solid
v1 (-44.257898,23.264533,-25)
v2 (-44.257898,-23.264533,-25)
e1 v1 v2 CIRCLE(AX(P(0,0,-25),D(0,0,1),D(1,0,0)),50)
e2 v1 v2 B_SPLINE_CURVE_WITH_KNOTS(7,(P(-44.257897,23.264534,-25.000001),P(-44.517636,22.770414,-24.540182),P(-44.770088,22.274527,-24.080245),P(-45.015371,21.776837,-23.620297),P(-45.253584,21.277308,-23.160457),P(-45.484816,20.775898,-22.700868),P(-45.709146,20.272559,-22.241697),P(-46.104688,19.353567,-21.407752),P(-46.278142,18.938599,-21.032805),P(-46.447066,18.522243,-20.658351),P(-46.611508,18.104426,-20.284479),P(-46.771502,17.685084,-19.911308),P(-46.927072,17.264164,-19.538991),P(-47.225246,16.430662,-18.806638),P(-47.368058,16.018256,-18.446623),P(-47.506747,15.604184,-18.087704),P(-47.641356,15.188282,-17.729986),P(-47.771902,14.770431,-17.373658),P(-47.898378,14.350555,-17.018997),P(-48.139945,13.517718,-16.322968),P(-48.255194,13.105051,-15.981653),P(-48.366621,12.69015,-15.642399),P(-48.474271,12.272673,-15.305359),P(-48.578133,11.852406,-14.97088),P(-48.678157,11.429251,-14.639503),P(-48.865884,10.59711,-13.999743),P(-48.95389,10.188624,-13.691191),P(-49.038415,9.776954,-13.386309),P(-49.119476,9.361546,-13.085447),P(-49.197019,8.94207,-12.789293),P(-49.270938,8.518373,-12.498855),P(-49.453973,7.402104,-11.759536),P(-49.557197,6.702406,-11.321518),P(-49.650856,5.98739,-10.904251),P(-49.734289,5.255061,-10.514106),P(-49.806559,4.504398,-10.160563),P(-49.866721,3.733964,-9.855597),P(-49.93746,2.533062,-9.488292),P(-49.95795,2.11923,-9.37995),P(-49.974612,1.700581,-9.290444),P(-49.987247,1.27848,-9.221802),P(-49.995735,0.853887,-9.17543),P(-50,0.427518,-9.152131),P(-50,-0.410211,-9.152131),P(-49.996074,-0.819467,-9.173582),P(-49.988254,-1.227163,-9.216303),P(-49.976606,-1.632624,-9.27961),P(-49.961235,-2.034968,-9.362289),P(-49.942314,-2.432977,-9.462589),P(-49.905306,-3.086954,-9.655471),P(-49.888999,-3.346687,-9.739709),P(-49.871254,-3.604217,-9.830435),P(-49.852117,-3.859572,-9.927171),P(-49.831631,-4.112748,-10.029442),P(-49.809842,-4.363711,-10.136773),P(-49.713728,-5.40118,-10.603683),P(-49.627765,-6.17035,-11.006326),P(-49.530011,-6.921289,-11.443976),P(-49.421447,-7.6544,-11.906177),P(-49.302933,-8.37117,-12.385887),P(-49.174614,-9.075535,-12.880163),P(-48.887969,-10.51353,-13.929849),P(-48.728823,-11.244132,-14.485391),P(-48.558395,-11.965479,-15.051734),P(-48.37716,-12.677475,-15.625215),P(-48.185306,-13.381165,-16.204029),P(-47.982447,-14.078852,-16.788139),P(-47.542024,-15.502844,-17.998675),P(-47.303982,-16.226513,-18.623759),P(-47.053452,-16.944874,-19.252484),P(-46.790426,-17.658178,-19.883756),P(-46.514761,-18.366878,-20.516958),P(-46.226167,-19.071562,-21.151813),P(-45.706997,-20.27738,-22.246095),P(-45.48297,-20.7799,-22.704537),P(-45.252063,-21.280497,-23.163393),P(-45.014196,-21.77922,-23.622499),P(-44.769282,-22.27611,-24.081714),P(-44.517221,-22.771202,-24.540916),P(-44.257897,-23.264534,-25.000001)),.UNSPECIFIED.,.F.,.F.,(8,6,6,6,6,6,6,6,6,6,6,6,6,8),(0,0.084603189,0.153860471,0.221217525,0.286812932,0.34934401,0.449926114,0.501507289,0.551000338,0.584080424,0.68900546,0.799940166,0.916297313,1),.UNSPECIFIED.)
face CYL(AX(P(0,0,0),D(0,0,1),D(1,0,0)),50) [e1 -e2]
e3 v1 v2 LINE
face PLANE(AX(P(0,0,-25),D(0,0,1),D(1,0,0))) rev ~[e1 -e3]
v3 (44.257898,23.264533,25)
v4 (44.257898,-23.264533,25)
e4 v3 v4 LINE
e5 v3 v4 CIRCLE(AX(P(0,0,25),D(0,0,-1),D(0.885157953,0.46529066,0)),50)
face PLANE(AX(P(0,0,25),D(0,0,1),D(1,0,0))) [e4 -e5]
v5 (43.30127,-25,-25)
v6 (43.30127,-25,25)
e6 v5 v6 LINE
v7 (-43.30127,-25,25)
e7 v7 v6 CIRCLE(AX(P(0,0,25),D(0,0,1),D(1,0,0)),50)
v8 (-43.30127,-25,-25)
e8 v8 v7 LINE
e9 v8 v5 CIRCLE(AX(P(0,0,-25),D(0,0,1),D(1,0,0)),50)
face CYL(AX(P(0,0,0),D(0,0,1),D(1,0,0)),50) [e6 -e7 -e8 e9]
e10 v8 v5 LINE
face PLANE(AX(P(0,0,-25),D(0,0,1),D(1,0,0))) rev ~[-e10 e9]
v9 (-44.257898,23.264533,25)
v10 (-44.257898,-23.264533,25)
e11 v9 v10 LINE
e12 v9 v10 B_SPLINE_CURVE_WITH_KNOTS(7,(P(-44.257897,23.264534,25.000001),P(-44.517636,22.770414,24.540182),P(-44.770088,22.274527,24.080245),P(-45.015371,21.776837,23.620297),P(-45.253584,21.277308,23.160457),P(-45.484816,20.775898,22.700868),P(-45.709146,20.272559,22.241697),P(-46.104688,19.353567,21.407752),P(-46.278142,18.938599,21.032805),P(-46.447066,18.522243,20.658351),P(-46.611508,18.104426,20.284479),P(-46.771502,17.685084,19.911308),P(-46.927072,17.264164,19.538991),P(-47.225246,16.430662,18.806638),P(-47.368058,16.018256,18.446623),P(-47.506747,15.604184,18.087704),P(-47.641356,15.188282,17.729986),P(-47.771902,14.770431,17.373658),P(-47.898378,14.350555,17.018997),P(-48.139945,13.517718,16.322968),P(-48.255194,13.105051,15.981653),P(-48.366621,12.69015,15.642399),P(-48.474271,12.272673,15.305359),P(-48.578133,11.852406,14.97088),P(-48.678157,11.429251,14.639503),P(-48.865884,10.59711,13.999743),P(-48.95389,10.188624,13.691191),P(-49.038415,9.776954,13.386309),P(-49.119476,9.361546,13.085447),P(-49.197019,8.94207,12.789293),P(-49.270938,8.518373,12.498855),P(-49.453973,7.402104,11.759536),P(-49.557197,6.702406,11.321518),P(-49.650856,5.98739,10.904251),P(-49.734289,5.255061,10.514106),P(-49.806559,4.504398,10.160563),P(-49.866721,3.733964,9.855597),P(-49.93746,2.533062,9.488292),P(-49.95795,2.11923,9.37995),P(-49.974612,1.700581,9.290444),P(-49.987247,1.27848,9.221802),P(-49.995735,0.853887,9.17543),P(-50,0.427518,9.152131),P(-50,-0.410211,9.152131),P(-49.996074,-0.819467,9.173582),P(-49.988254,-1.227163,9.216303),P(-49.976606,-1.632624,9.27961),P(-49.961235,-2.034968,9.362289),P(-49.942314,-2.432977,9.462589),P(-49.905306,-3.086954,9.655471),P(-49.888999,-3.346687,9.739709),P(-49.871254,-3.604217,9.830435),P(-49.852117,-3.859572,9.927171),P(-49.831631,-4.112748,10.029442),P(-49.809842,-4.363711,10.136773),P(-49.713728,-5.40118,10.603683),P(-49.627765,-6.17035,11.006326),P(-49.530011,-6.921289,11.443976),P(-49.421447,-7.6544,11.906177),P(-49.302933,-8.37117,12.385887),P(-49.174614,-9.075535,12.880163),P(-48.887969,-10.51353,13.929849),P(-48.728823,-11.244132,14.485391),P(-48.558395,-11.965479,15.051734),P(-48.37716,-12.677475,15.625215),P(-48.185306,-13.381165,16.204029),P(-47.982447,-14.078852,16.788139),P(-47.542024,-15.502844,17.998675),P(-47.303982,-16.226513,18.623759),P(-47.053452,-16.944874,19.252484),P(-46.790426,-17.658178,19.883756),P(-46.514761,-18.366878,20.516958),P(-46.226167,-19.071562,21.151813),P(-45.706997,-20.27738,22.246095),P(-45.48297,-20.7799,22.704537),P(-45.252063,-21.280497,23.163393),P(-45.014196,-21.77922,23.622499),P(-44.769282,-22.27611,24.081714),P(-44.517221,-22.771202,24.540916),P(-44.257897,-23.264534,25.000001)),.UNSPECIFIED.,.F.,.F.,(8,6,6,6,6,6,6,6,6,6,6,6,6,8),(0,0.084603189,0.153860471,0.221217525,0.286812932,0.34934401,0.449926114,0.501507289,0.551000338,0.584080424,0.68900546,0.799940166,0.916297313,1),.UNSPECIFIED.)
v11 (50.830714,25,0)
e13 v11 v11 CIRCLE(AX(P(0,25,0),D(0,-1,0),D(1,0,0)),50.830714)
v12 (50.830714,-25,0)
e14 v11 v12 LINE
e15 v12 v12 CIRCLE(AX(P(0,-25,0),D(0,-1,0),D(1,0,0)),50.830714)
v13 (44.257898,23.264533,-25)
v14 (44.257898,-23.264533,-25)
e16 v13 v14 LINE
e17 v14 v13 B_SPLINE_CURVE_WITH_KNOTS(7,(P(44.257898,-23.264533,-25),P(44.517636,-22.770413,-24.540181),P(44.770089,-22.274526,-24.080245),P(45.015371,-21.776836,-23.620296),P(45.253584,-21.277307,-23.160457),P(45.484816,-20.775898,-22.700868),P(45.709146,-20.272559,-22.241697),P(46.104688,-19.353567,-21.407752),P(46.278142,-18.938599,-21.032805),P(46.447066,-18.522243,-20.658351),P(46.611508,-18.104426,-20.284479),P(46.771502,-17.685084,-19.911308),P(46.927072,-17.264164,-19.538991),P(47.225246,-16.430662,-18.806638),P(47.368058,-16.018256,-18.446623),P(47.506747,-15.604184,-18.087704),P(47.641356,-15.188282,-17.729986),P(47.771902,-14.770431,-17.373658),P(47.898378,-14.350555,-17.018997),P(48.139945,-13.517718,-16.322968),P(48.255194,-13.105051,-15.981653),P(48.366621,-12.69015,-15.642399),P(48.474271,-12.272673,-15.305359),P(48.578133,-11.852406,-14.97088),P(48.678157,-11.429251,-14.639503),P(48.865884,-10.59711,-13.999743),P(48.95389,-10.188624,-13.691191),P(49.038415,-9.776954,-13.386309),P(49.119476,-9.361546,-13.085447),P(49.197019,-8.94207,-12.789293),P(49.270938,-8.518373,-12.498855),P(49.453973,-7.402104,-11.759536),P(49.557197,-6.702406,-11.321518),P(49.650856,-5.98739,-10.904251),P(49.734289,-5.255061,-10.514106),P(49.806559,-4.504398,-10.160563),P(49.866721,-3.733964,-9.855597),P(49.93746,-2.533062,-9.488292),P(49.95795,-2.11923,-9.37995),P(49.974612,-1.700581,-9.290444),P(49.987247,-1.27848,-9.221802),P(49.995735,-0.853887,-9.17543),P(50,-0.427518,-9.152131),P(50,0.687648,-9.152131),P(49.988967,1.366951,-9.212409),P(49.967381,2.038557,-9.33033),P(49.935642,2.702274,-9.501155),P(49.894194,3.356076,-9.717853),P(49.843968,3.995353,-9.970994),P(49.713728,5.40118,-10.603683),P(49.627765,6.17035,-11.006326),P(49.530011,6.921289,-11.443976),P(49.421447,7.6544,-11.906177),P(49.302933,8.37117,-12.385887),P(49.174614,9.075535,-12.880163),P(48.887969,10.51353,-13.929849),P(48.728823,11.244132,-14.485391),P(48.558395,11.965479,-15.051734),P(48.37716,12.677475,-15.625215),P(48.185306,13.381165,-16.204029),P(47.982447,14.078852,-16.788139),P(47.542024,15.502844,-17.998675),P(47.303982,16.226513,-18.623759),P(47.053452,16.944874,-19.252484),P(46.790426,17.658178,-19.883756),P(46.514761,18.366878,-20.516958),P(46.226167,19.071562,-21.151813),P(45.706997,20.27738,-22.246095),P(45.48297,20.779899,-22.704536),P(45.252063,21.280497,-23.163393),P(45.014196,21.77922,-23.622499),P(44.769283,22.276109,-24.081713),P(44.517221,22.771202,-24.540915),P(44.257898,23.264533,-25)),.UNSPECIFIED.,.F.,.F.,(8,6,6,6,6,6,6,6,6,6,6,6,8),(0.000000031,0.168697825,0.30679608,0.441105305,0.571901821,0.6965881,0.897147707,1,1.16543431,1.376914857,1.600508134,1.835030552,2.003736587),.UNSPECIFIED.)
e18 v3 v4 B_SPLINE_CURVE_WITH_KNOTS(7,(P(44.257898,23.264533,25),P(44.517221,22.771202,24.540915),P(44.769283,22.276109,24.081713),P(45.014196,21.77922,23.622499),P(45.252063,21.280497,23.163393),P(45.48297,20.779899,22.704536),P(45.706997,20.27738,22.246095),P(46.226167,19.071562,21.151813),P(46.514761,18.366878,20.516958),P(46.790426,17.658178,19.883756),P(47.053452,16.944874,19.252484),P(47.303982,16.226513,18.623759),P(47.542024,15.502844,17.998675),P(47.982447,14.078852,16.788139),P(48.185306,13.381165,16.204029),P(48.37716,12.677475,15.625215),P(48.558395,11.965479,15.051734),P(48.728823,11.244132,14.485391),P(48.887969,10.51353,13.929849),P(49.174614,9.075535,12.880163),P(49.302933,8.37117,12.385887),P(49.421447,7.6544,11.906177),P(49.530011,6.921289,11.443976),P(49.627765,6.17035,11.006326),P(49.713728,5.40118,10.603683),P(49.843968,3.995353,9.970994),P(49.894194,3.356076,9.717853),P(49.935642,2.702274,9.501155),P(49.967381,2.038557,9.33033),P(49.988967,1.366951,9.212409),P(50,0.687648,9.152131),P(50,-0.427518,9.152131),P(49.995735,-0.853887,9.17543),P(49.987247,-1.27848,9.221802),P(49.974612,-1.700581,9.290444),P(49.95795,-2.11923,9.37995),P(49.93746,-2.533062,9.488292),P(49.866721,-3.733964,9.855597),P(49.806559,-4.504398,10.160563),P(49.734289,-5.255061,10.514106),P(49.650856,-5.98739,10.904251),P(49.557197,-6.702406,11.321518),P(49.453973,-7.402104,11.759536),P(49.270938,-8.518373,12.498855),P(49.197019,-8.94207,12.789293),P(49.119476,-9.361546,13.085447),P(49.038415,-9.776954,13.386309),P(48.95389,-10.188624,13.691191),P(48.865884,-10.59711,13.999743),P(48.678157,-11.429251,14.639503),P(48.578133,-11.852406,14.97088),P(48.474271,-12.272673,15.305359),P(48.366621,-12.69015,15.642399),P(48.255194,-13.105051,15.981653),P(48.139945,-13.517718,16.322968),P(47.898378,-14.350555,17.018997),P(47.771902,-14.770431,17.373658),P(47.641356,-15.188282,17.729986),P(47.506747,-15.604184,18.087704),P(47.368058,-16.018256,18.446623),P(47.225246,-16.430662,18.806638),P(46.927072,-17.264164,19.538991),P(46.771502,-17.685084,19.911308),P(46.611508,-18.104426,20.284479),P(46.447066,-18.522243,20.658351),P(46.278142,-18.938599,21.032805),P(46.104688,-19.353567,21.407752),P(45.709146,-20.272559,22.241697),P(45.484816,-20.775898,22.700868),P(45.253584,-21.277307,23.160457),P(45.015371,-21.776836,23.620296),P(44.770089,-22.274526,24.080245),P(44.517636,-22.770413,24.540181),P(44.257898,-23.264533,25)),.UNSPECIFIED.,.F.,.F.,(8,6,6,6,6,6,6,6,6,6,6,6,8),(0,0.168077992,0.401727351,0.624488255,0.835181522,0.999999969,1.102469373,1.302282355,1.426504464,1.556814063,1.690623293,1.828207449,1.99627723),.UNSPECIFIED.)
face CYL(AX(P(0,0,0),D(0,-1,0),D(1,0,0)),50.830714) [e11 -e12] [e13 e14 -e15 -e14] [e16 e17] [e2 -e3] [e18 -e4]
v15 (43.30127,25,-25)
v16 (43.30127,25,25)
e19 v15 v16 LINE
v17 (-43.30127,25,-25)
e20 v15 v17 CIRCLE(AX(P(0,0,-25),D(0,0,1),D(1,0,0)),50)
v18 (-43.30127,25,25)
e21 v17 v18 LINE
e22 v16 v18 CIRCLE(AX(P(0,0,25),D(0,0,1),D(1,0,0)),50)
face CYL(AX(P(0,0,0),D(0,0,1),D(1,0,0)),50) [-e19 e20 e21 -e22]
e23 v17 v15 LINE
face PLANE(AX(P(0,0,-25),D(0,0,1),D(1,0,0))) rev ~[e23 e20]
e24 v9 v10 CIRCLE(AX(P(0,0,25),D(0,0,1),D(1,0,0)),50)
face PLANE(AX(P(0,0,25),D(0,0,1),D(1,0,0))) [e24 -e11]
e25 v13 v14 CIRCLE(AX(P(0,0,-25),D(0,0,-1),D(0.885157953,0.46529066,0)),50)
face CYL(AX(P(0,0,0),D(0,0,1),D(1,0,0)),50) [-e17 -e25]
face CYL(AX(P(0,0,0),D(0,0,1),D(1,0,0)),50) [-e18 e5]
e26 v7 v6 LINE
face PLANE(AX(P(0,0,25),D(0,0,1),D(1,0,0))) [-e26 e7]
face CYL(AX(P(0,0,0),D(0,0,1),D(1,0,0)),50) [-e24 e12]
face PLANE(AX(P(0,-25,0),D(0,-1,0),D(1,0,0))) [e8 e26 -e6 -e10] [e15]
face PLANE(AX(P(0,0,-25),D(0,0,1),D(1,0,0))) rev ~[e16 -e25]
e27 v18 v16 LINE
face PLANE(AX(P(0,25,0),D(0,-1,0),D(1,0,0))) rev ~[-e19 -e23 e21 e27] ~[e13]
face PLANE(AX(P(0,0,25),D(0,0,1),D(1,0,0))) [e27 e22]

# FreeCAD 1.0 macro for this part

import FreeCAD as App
import Part
import Sketcher
from FreeCAD import Vector

doc = App.newDocument("Part")
params = doc.addObject("Spreadsheet::Sheet", "Params")
for row, (alias, value) in enumerate([
    ("sketch1_diameter", "100 mm"),
    ("pad1_length", "50 mm"),
    ("pad2_length", "50 mm"),
], start=1):
    params.set(f"A{row}", alias)
    params.set(f"B{row}", "=" + value)
    params.setAlias(f"B{row}", alias)

body = doc.addObject("PartDesign::Body", "Body")

# Sketch on XY plane
sketch1 = body.newObject("Sketcher::SketchObject", "Sketch")
sketch1.AttachmentSupport = (doc.getObject("XY_Plane"), [""])
sketch1.MapMode = "FlatFace"
sketch1.addGeometry(Part.Circle(Vector(0, 0, 0), Vector(0, 0, 1), 50), False)
sketch1.addConstraint([
    Sketcher.Constraint("Coincident", 0, 3, -1, 1),
    Sketcher.Constraint("Diameter", 0, 100.0),
])
sketch1.setExpression("Constraints[1]", "Params.sketch1_diameter")
pad1 = body.newObject("PartDesign::Pad", "Pad")
pad1.Profile = sketch1
pad1.setExpression("Length", "Params.pad1_length")
pad1.Midplane = True

# Sketch on XZ plane
sketch2 = body.newObject("Sketcher::SketchObject", "Sketch001")
sketch2.AttachmentSupport = (doc.getObject("XZ_Plane"), [""])
sketch2.MapMode = "FlatFace"
sketch2.addGeometry([
    Part.Circle(Vector(0, 0, 0), Vector(0, 0, 1), 50.8),
    Part.Circle(Vector(0, 0, 0), Vector(0, 0, 1), 3.5),
], False)
sketch2.addConstraint([
    Sketcher.Constraint("Coincident", 0, 3, -1, 1),
    Sketcher.Constraint("Coincident", 1, 3, -1, 1),
    Sketcher.Constraint("Diameter", 0, 101.661428),
    Sketcher.Constraint("Diameter", 1, 6.940995),
])
pad2 = body.newObject("PartDesign::Pad", "Pad001")
pad2.Profile = sketch2
pad2.setExpression("Length", "Params.pad2_length")
pad2.Midplane = True

doc.recompute()
